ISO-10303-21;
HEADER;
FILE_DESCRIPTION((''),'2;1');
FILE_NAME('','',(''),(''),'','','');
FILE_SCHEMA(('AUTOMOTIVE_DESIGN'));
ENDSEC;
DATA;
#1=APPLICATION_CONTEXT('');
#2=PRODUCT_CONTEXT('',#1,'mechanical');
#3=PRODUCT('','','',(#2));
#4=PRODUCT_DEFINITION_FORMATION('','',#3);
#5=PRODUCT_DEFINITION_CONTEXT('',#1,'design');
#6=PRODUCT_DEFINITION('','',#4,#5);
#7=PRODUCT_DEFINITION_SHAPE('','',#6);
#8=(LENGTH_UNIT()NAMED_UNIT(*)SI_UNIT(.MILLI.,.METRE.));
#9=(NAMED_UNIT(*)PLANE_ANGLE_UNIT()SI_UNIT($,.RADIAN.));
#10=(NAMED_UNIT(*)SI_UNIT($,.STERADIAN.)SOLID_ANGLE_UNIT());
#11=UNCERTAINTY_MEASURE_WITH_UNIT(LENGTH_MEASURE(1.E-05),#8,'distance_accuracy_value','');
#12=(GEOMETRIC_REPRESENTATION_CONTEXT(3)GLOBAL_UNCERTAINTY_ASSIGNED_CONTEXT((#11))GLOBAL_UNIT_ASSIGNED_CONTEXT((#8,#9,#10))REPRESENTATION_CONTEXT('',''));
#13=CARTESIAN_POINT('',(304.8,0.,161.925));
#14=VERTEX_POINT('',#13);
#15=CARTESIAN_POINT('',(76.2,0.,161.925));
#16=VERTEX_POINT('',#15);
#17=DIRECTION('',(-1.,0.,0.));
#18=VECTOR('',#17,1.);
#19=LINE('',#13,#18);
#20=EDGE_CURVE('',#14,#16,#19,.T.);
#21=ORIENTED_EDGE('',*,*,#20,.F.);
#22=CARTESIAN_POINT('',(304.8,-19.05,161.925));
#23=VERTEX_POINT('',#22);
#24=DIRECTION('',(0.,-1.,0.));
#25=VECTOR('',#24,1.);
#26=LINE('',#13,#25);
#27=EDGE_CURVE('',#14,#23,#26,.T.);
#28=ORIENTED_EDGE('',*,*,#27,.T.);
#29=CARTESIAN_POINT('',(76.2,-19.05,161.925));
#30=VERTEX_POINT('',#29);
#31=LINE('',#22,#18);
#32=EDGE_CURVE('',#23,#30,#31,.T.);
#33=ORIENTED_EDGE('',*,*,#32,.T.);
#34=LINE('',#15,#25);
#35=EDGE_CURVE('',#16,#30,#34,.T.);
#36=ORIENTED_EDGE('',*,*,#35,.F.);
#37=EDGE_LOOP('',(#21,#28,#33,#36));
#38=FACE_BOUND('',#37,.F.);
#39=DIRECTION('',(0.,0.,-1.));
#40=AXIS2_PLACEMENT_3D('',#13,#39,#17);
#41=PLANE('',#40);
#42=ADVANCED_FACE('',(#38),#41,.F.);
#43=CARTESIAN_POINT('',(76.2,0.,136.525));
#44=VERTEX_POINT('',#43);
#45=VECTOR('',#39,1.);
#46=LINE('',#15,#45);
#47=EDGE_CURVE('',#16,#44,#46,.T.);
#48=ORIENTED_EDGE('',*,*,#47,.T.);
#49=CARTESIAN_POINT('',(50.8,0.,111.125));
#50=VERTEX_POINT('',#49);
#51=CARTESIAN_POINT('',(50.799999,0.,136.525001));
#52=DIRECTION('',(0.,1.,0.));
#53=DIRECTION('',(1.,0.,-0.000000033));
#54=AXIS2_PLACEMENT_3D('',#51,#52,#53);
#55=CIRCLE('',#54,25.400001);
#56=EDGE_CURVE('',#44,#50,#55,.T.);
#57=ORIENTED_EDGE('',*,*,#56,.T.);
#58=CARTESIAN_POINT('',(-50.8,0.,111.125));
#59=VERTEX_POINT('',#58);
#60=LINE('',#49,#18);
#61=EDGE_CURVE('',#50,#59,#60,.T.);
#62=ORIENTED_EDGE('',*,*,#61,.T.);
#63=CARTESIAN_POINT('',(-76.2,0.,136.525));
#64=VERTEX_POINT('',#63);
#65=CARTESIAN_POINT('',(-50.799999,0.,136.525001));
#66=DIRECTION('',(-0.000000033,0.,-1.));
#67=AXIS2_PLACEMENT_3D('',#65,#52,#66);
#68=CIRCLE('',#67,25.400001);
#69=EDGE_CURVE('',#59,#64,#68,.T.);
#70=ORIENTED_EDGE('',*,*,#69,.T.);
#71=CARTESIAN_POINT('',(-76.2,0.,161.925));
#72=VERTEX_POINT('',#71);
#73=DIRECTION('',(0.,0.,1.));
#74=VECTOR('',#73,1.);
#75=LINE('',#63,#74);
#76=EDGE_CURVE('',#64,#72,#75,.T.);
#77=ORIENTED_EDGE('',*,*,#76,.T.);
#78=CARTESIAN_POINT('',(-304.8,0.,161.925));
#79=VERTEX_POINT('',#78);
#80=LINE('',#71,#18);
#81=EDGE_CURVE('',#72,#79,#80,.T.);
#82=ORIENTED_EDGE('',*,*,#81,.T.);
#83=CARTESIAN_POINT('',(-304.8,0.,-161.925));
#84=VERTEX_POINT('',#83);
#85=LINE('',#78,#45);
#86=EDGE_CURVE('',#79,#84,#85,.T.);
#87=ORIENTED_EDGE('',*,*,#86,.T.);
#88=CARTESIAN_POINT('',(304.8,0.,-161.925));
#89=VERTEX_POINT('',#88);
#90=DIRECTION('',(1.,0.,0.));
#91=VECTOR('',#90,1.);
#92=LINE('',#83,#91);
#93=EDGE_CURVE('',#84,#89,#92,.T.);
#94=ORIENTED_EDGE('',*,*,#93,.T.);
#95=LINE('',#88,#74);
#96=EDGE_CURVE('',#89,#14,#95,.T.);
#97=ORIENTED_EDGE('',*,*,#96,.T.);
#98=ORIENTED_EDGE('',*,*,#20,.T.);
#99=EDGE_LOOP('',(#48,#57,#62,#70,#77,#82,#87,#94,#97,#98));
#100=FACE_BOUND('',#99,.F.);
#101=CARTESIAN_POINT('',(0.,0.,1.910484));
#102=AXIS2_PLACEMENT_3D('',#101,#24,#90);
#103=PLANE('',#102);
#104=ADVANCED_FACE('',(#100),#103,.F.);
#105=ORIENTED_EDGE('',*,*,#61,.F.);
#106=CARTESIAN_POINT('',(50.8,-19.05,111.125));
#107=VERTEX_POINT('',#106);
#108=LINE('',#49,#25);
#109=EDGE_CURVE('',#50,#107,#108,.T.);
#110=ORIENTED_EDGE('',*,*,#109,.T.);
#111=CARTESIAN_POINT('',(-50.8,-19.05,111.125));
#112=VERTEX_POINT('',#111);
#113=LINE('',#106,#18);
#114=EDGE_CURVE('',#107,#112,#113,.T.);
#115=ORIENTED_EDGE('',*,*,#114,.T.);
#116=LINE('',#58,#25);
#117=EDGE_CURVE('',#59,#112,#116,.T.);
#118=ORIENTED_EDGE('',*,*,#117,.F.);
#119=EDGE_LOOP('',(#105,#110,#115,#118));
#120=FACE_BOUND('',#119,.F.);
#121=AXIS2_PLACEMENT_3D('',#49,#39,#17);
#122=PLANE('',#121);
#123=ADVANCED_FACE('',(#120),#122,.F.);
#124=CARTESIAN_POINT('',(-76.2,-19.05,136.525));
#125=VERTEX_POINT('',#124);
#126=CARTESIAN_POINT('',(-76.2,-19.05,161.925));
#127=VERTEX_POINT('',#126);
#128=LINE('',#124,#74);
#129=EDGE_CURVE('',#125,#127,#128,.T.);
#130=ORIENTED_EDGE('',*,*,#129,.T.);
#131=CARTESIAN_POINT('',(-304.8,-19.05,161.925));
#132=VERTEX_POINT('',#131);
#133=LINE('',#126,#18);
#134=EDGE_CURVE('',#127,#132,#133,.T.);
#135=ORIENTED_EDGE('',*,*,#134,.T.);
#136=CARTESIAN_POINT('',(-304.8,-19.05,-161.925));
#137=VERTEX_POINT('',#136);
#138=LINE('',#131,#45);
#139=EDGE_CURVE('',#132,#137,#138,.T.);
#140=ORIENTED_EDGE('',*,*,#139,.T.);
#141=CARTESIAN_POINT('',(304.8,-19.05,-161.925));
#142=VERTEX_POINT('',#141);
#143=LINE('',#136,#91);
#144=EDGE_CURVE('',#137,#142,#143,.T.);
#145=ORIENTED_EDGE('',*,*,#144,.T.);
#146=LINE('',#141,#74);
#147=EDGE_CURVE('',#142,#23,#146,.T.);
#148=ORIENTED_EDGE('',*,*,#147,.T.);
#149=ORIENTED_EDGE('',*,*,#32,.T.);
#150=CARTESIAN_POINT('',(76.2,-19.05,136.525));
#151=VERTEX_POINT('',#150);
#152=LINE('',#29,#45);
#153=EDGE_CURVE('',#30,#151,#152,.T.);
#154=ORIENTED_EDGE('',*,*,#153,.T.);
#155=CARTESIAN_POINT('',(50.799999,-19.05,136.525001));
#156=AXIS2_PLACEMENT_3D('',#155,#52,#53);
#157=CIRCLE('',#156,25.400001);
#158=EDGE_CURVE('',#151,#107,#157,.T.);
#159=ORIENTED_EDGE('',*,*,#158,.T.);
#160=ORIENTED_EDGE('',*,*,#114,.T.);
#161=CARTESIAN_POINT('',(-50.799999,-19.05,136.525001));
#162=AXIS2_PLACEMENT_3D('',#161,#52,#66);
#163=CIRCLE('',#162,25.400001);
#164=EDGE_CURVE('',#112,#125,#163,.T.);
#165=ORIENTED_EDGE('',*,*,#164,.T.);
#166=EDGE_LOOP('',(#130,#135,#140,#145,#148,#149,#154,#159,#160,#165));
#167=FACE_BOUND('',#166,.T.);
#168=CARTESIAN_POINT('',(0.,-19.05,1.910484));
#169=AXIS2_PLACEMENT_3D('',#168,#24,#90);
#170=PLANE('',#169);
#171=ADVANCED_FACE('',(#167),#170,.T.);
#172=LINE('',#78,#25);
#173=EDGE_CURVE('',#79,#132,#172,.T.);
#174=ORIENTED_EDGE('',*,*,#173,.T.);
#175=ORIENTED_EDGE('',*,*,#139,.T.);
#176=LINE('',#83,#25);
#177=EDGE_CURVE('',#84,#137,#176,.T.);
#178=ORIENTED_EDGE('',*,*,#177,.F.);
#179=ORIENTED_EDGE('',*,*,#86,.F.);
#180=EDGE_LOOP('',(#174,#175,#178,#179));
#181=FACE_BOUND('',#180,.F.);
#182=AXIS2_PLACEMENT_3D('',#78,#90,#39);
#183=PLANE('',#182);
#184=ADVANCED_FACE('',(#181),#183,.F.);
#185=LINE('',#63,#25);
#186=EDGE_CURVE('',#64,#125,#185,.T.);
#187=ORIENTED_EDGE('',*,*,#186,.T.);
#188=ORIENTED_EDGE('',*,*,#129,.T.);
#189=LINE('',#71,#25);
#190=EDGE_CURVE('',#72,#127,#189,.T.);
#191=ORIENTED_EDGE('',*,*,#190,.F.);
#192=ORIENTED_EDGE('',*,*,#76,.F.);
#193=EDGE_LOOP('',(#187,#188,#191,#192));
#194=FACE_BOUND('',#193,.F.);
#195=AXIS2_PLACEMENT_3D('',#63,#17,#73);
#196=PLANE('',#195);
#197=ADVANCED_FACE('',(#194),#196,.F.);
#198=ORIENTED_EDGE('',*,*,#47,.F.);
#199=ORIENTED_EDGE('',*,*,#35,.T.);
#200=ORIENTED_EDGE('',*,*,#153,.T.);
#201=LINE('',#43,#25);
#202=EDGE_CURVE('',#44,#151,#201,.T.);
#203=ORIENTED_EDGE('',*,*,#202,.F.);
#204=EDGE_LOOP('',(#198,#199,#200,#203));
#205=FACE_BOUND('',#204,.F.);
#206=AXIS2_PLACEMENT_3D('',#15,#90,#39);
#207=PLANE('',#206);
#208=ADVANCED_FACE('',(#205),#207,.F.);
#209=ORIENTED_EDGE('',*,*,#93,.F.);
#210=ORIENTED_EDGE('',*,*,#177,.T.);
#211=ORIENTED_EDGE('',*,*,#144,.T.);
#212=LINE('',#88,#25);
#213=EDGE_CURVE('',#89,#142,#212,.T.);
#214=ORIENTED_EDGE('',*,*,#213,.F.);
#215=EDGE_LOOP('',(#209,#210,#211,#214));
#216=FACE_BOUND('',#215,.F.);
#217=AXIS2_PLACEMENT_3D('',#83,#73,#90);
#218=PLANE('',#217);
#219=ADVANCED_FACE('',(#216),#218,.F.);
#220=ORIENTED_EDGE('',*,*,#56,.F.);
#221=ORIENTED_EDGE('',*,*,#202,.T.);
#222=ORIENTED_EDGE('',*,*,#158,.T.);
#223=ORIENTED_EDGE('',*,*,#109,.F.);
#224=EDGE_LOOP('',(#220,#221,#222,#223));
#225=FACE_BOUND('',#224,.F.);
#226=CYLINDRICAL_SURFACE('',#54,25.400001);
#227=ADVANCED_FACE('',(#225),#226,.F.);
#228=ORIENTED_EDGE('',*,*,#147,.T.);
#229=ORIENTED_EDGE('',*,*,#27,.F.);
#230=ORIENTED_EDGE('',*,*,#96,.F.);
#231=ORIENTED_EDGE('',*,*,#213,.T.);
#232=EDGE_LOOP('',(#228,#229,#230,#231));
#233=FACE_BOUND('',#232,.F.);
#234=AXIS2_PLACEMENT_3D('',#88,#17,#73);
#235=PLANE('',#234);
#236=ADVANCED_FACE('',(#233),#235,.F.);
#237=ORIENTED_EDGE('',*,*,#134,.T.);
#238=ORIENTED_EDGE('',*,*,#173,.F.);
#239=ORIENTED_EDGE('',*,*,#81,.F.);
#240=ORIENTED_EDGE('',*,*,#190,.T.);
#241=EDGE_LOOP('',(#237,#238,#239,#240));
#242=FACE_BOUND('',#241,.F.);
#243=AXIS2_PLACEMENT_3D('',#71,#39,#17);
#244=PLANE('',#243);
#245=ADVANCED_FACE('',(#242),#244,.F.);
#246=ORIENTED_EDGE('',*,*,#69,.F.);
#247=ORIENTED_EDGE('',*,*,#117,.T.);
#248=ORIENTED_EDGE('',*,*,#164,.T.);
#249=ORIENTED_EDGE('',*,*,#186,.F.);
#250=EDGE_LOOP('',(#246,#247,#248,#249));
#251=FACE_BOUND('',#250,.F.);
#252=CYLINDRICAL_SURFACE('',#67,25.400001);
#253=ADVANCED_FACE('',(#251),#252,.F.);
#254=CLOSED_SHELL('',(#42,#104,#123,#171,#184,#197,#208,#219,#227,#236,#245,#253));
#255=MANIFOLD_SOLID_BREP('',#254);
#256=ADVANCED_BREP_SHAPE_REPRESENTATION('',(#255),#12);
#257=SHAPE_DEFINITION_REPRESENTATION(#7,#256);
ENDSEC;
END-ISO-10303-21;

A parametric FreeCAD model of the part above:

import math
import FreeCAD as App
import Part
import Sketcher
from FreeCAD import Vector
Q = App.Units.Quantity

doc = App.newDocument("Part")
params = doc.addObject("Spreadsheet::Sheet", "Params")
for row, (alias, value) in enumerate([
    ("sketch1_radius", "1 in"),
    ("sketch1_width", "9 in"),
    ("sketch1_width2", "24 in"),
    ("sketch1_height", "1 in"),
    ("sketch1_height2", "12.75 in"),
    ("pad1_length", "0.75 in"),
], start=1):
    params.set(f"A{row}", alias)
    params.set(f"B{row}", "=" + value)
    params.setAlias(f"B{row}", alias)

body = doc.addObject("PartDesign::Body", "Body")

sketch1 = body.newObject("Sketcher::SketchObject", "Sketch")
sketch1.AttachmentSupport = (doc.getObject("XZ_Plane"), [""])
sketch1.MapMode = "FlatFace"
sketch1.addGeometry(Part.LineSegment(Vector(-76, 162, 0), Vector(-305, 162, 0)), False)
sketch1.addGeometry(Part.LineSegment(Vector(-305, 162, 0), Vector(-305, -162, 0)), False)
sketch1.addGeometry(Part.LineSegment(Vector(-305, -162, 0), Vector(305, -162, 0)), False)
sketch1.addGeometry(Part.LineSegment(Vector(305, -162, 0), Vector(305, 162, 0)), False)
sketch1.addGeometry(Part.LineSegment(Vector(305, 162, 0), Vector(76, 162, 0)), False)
sketch1.addGeometry(Part.LineSegment(Vector(76, 162, 0), Vector(76, 137, 0)), False)
sketch1.addGeometry(Part.ArcOfCircle(Part.Circle(Vector(51, 137, 0), Vector(0, 0, 1), 25), math.radians(-90), math.radians(0)), False)
sketch1.addGeometry(Part.LineSegment(Vector(51, 111, 0), Vector(-51, 111, 0)), False)
sketch1.addGeometry(Part.ArcOfCircle(Part.Circle(Vector(-51, 137, 0), Vector(0, 0, 1), 25), math.radians(-180), math.radians(-90)), False)
sketch1.addGeometry(Part.LineSegment(Vector(-76, 137, 0), Vector(-76, 162, 0)), False)
sketch1.addConstraint(Sketcher.Constraint("Coincident", 0, 2, 1, 1))
sketch1.addConstraint(Sketcher.Constraint("Coincident", 1, 2, 2, 1))
sketch1.addConstraint(Sketcher.Constraint("Coincident", 2, 2, 3, 1))
sketch1.addConstraint(Sketcher.Constraint("Coincident", 3, 2, 4, 1))
sketch1.addConstraint(Sketcher.Constraint("Coincident", 4, 2, 5, 1))
sketch1.addConstraint(Sketcher.Constraint("Tangent", 5, 2, 6, 2))
sketch1.addConstraint(Sketcher.Constraint("Tangent", 6, 1, 7, 1))
sketch1.addConstraint(Sketcher.Constraint("Tangent", 7, 2, 8, 2))
sketch1.addConstraint(Sketcher.Constraint("Tangent", 8, 1, 9, 1))
sketch1.addConstraint(Sketcher.Constraint("Coincident", 9, 2, 0, 1))
sketch1.addConstraint(Sketcher.Constraint("Horizontal", 0))
sketch1.addConstraint(Sketcher.Constraint("Vertical", 1))
sketch1.addConstraint(Sketcher.Constraint("Horizontal", 2))
sketch1.addConstraint(Sketcher.Constraint("Vertical", 3))
sketch1.addConstraint(Sketcher.Constraint("Horizontal", 4))
sketch1.addConstraint(Sketcher.Constraint("Vertical", 5))
sketch1.addConstraint(Sketcher.Constraint("Horizontal", 7))
sketch1.addConstraint(Sketcher.Constraint("Vertical", 9))
sketch1.addConstraint(Sketcher.Constraint("Equal", 6, 8))
sketch1.addConstraint(Sketcher.Constraint("Symmetric", 0, 2, 2, 2, -1, 1))
sketch1.addConstraint(Sketcher.Constraint("Symmetric", 4, 2, 9, 2, -2))
sketch1.addConstraint(Sketcher.Constraint("Radius", 6, Q("1 in")))
sketch1.addConstraint(Sketcher.Constraint("DistanceX", 0, 2, 0, 1, Q("9 in")))
sketch1.addConstraint(Sketcher.Constraint("DistanceX", 2, 1, 2, 2, Q("24 in")))
sketch1.addConstraint(Sketcher.Constraint("DistanceY", 5, 2, 5, 1, Q("1 in")))
sketch1.addConstraint(Sketcher.Constraint("DistanceY", 1, 2, 1, 1, Q("12.75 in")))
sketch1.setExpression("Constraints[21]", "Params.sketch1_radius")
sketch1.setExpression("Constraints[22]", "Params.sketch1_width")
sketch1.setExpression("Constraints[23]", "Params.sketch1_width2")
sketch1.setExpression("Constraints[24]", "Params.sketch1_height")
sketch1.setExpression("Constraints[25]", "Params.sketch1_height2")
pad1 = body.newObject("PartDesign::Pad", "Pad")
pad1.Profile = sketch1
pad1.setExpression("Length", "Params.pad1_length")

doc.recompute()
